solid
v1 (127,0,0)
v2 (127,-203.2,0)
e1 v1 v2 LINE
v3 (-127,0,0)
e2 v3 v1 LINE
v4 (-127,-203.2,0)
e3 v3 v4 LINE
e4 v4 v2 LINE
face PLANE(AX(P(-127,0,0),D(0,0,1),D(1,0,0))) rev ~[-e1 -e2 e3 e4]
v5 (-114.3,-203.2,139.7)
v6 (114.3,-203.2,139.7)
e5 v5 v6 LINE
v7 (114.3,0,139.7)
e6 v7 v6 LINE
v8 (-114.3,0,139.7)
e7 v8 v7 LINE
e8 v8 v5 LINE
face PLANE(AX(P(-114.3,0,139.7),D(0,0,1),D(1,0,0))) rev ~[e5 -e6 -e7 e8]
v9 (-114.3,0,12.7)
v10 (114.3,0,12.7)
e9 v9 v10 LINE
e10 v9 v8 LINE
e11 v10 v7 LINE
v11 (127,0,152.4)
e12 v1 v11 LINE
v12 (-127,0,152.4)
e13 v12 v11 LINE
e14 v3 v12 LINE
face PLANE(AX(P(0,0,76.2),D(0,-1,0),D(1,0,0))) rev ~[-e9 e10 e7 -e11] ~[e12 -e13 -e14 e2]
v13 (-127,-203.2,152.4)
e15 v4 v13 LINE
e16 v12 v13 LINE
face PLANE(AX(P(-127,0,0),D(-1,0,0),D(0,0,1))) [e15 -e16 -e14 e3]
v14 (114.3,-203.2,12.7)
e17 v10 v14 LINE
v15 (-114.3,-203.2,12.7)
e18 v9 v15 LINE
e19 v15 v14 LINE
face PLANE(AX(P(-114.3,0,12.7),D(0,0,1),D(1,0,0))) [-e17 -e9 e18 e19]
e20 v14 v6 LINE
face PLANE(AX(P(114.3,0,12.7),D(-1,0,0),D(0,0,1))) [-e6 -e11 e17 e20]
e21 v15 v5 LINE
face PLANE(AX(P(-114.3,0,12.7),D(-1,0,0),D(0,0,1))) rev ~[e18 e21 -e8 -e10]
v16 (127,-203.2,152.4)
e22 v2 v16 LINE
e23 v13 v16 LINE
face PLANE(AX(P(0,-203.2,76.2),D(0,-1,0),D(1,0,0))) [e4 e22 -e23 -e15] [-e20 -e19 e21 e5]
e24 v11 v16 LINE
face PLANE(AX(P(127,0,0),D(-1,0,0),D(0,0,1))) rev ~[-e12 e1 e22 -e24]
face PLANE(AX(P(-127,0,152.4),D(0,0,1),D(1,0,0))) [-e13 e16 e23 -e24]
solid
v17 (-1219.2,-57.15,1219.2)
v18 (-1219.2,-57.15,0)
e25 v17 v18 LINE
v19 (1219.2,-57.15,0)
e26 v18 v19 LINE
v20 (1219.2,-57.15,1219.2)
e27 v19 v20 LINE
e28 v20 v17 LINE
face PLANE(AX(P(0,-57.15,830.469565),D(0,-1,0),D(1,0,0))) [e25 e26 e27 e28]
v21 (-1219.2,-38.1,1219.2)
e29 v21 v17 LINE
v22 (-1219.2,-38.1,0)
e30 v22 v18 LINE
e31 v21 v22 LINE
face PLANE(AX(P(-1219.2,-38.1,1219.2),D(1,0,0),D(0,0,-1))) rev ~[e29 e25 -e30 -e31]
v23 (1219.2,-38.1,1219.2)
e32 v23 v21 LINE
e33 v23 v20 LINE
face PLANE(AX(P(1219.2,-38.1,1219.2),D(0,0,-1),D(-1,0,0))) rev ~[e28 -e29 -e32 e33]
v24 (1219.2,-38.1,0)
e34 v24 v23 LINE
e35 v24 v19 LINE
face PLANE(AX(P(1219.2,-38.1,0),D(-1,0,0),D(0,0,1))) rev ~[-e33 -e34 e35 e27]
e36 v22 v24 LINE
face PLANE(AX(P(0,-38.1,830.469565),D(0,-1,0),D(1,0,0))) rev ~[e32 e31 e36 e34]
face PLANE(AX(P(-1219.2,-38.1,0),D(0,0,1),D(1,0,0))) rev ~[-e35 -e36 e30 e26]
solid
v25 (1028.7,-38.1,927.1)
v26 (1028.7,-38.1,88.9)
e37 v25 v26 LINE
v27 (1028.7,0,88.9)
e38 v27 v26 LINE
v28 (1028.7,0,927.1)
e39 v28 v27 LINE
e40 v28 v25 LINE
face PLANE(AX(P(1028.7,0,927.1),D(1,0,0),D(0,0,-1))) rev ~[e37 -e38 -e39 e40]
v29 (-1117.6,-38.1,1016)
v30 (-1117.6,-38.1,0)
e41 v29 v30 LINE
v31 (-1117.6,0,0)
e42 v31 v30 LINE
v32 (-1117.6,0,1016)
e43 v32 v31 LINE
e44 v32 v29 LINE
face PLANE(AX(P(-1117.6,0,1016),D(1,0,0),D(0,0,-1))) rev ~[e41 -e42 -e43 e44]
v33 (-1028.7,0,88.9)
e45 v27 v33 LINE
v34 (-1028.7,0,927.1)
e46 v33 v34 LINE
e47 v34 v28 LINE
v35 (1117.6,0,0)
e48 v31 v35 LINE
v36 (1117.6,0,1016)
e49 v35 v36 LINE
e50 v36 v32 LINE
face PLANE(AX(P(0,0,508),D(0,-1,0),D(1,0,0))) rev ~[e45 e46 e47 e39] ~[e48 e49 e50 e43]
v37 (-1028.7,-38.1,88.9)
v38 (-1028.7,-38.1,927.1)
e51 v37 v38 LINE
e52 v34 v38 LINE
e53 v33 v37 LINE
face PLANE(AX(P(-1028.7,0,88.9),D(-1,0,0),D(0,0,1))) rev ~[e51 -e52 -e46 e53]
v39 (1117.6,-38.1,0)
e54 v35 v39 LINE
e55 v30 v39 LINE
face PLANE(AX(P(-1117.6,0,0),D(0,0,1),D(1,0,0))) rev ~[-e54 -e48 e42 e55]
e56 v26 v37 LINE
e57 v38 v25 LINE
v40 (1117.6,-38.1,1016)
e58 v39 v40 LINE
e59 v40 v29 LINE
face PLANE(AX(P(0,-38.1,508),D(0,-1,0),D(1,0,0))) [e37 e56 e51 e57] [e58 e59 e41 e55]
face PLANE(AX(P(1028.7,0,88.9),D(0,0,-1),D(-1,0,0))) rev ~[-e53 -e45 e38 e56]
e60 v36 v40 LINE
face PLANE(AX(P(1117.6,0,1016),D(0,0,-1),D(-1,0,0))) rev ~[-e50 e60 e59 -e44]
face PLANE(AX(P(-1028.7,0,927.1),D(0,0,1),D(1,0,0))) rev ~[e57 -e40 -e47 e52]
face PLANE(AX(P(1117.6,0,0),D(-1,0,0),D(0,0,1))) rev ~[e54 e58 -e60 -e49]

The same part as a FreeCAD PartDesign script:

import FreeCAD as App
import Part
import Sketcher

V = App.Vector
Q = App.Units.Quantity

doc = App.newDocument("Part")
body = doc.addObject("PartDesign::Body", "Body")

sketch1 = body.newObject("Sketcher::SketchObject", "Sketch")
sketch1.AttachmentSupport = (doc.getObject("XZ_Plane"), [""])
sketch1.MapMode = "FlatFace"
sketch1.addGeometry([
    Part.LineSegment(V(-1117.6, 1016, 0), V(-1117.6, 0, 0)),
    Part.LineSegment(V(-1117.6, 0, 0), V(1117.6, 0, 0)),
    Part.LineSegment(V(1117.6, 0, 0), V(1117.6, 1016, 0)),
    Part.LineSegment(V(1117.6, 1016, 0), V(-1117.6, 1016, 0)),
    Part.LineSegment(V(1028.7, 927.1, 0), V(1028.7, 88.9, 0)),
    Part.LineSegment(V(1028.7, 88.9, 0), V(-1028.7, 88.9, 0)),
    Part.LineSegment(V(-1028.7, 88.9, 0), V(-1028.7, 927.1, 0)),
    Part.LineSegment(V(-1028.7, 927.1, 0), V(1028.7, 927.1, 0)),
], False)
sketch1.addConstraint([
    Sketcher.Constraint("Coincident", 0, 2, 1, 1),
    Sketcher.Constraint("Coincident", 1, 2, 2, 1),
    Sketcher.Constraint("Coincident", 2, 2, 3, 1),
    Sketcher.Constraint("Coincident", 3, 2, 0, 1),
    Sketcher.Constraint("Coincident", 4, 2, 5, 1),
    Sketcher.Constraint("Coincident", 5, 2, 6, 1),
    Sketcher.Constraint("Coincident", 6, 2, 7, 1),
    Sketcher.Constraint("Coincident", 7, 2, 4, 1),
    Sketcher.Constraint("Vertical", 0),
    Sketcher.Constraint("Horizontal", 1),
    Sketcher.Constraint("Vertical", 2),
    Sketcher.Constraint("Horizontal", 3),
    Sketcher.Constraint("Vertical", 4),
    Sketcher.Constraint("Horizontal", 5),
    Sketcher.Constraint("Vertical", 6),
    Sketcher.Constraint("Horizontal", 7),
    Sketcher.Constraint("Symmetric", 0, 2, 1, 2, -1, 1),
    Sketcher.Constraint("DistanceX", 1, 1, 1, 2, Q("88 in")),
    Sketcher.Constraint("DistanceX", 5, 2, 5, 1, Q("81 in")),
    Sketcher.Constraint("DistanceY", 0, 2, 0, 1, Q("40 in")),
    Sketcher.Constraint("DistanceY", 4, 2, 4, 1, Q("33 in")),
    Sketcher.Constraint("DistanceX", -1, 1, 4, 2, Q("40.5 in")),
    Sketcher.Constraint("DistanceY", -1, 1, 4, 2, Q("3.5 in")),
])
pad1 = body.newObject("PartDesign::Pad", "Pad")
pad1.Profile = sketch1
pad1.Length = Q("1.5 in")
body2 = doc.addObject("PartDesign::Body", "Body001")

sketch2 = body2.newObject("Sketcher::SketchObject", "Sketch001")
sketch2.AttachmentSupport = (doc.getObject("XZ_Plane001"), [""])
sketch2.MapMode = "FlatFace"
sketch2.AttachmentOffset = App.Placement(V(0, 0, 1.5 * 25.4), App.Rotation())
sketch2.addGeometry([
    Part.LineSegment(V(1219.2, 1219.2, 0), V(-1219.2, 1219.2, 0)),
    Part.LineSegment(V(-1219.2, 1219.2, 0), V(-1219.2, 0, 0)),
    Part.LineSegment(V(-1219.2, 0, 0), V(1219.2, 0, 0)),
    Part.LineSegment(V(1219.2, 0, 0), V(1219.2, 1219.2, 0)),
], False)
sketch2.addConstraint([
    Sketcher.Constraint("Coincident", 0, 2, 1, 1),
    Sketcher.Constraint("Coincident", 1, 2, 2, 1),
    Sketcher.Constraint("Coincident", 2, 2, 3, 1),
    Sketcher.Constraint("Coincident", 3, 2, 0, 1),
    Sketcher.Constraint("Horizontal", 0),
    Sketcher.Constraint("Vertical", 1),
    Sketcher.Constraint("Horizontal", 2),
    Sketcher.Constraint("Vertical", 3),
    Sketcher.Constraint("Symmetric", 1, 2, 2, 2, -1, 1),
    Sketcher.Constraint("DistanceX", 0, 2, 0, 1, Q("96 in")),
    Sketcher.Constraint("DistanceY", 1, 2, 1, 1, Q("48 in")),
])
pad2 = body2.newObject("PartDesign::Pad", "Pad001")
pad2.Profile = sketch2
pad2.Length = Q("0.75 in")
body3 = doc.addObject("PartDesign::Body", "Body002")

sketch3 = body3.newObject("Sketcher::SketchObject", "Sketch002")
sketch3.AttachmentSupport = (doc.getObject("XZ_Plane002"), [""])
sketch3.MapMode = "FlatFace"
sketch3.addGeometry([
    Part.LineSegment(V(-127, 152.4, 0), V(-127, 0, 0)),
    Part.LineSegment(V(-127, 0, 0), V(127, 0, 0)),
    Part.LineSegment(V(127, 0, 0), V(127, 152.4, 0)),
    Part.LineSegment(V(127, 152.4, 0), V(-127, 152.4, 0)),
    Part.LineSegment(V(114.3, 12.7, 0), V(-114.3, 12.7, 0)),
    Part.LineSegment(V(-114.3, 12.7, 0), V(-114.3, 139.7, 0)),
    Part.LineSegment(V(-114.3, 139.7, 0), V(114.3, 139.7, 0)),
    Part.LineSegment(V(114.3, 139.7, 0), V(114.3, 12.7, 0)),
], False)
sketch3.addConstraint([
    Sketcher.Constraint("Coincident", 0, 2, 1, 1),
    Sketcher.Constraint("Coincident", 1, 2, 2, 1),
    Sketcher.Constraint("Coincident", 2, 2, 3, 1),
    Sketcher.Constraint("Coincident", 3, 2, 0, 1),
    Sketcher.Constraint("Coincident", 4, 2, 5, 1),
    Sketcher.Constraint("Coincident", 5, 2, 6, 1),
    Sketcher.Constraint("Coincident", 6, 2, 7, 1),
    Sketcher.Constraint("Coincident", 7, 2, 4, 1),
    Sketcher.Constraint("Vertical", 0),
    Sketcher.Constraint("Horizontal", 1),
    Sketcher.Constraint("Vertical", 2),
    Sketcher.Constraint("Horizontal", 3),
    Sketcher.Constraint("Horizontal", 4),
    Sketcher.Constraint("Vertical", 5),
    Sketcher.Constraint("Horizontal", 6),
    Sketcher.Constraint("Vertical", 7),
    Sketcher.Constraint("Symmetric", 0, 2, 1, 2, -1, 1),
    Sketcher.Constraint("DistanceX", 1, 1, 1, 2, Q("10 in")),
    Sketcher.Constraint("DistanceX", 4, 2, 4, 1, Q("9 in")),
    Sketcher.Constraint("DistanceY", 0, 2, 0, 1, Q("6 in")),
    Sketcher.Constraint("DistanceY", 5, 1, 5, 2, Q("5 in")),
    Sketcher.Constraint("DistanceX", 4, 2, -1, 1, Q("4.5 in")),
    Sketcher.Constraint("DistanceY", -1, 1, 4, 2, Q("0.5 in")),
])
pad3 = body3.newObject("PartDesign::Pad", "Pad002")
pad3.Profile = sketch3
pad3.Length = Q("8 in")

doc.recompute()
